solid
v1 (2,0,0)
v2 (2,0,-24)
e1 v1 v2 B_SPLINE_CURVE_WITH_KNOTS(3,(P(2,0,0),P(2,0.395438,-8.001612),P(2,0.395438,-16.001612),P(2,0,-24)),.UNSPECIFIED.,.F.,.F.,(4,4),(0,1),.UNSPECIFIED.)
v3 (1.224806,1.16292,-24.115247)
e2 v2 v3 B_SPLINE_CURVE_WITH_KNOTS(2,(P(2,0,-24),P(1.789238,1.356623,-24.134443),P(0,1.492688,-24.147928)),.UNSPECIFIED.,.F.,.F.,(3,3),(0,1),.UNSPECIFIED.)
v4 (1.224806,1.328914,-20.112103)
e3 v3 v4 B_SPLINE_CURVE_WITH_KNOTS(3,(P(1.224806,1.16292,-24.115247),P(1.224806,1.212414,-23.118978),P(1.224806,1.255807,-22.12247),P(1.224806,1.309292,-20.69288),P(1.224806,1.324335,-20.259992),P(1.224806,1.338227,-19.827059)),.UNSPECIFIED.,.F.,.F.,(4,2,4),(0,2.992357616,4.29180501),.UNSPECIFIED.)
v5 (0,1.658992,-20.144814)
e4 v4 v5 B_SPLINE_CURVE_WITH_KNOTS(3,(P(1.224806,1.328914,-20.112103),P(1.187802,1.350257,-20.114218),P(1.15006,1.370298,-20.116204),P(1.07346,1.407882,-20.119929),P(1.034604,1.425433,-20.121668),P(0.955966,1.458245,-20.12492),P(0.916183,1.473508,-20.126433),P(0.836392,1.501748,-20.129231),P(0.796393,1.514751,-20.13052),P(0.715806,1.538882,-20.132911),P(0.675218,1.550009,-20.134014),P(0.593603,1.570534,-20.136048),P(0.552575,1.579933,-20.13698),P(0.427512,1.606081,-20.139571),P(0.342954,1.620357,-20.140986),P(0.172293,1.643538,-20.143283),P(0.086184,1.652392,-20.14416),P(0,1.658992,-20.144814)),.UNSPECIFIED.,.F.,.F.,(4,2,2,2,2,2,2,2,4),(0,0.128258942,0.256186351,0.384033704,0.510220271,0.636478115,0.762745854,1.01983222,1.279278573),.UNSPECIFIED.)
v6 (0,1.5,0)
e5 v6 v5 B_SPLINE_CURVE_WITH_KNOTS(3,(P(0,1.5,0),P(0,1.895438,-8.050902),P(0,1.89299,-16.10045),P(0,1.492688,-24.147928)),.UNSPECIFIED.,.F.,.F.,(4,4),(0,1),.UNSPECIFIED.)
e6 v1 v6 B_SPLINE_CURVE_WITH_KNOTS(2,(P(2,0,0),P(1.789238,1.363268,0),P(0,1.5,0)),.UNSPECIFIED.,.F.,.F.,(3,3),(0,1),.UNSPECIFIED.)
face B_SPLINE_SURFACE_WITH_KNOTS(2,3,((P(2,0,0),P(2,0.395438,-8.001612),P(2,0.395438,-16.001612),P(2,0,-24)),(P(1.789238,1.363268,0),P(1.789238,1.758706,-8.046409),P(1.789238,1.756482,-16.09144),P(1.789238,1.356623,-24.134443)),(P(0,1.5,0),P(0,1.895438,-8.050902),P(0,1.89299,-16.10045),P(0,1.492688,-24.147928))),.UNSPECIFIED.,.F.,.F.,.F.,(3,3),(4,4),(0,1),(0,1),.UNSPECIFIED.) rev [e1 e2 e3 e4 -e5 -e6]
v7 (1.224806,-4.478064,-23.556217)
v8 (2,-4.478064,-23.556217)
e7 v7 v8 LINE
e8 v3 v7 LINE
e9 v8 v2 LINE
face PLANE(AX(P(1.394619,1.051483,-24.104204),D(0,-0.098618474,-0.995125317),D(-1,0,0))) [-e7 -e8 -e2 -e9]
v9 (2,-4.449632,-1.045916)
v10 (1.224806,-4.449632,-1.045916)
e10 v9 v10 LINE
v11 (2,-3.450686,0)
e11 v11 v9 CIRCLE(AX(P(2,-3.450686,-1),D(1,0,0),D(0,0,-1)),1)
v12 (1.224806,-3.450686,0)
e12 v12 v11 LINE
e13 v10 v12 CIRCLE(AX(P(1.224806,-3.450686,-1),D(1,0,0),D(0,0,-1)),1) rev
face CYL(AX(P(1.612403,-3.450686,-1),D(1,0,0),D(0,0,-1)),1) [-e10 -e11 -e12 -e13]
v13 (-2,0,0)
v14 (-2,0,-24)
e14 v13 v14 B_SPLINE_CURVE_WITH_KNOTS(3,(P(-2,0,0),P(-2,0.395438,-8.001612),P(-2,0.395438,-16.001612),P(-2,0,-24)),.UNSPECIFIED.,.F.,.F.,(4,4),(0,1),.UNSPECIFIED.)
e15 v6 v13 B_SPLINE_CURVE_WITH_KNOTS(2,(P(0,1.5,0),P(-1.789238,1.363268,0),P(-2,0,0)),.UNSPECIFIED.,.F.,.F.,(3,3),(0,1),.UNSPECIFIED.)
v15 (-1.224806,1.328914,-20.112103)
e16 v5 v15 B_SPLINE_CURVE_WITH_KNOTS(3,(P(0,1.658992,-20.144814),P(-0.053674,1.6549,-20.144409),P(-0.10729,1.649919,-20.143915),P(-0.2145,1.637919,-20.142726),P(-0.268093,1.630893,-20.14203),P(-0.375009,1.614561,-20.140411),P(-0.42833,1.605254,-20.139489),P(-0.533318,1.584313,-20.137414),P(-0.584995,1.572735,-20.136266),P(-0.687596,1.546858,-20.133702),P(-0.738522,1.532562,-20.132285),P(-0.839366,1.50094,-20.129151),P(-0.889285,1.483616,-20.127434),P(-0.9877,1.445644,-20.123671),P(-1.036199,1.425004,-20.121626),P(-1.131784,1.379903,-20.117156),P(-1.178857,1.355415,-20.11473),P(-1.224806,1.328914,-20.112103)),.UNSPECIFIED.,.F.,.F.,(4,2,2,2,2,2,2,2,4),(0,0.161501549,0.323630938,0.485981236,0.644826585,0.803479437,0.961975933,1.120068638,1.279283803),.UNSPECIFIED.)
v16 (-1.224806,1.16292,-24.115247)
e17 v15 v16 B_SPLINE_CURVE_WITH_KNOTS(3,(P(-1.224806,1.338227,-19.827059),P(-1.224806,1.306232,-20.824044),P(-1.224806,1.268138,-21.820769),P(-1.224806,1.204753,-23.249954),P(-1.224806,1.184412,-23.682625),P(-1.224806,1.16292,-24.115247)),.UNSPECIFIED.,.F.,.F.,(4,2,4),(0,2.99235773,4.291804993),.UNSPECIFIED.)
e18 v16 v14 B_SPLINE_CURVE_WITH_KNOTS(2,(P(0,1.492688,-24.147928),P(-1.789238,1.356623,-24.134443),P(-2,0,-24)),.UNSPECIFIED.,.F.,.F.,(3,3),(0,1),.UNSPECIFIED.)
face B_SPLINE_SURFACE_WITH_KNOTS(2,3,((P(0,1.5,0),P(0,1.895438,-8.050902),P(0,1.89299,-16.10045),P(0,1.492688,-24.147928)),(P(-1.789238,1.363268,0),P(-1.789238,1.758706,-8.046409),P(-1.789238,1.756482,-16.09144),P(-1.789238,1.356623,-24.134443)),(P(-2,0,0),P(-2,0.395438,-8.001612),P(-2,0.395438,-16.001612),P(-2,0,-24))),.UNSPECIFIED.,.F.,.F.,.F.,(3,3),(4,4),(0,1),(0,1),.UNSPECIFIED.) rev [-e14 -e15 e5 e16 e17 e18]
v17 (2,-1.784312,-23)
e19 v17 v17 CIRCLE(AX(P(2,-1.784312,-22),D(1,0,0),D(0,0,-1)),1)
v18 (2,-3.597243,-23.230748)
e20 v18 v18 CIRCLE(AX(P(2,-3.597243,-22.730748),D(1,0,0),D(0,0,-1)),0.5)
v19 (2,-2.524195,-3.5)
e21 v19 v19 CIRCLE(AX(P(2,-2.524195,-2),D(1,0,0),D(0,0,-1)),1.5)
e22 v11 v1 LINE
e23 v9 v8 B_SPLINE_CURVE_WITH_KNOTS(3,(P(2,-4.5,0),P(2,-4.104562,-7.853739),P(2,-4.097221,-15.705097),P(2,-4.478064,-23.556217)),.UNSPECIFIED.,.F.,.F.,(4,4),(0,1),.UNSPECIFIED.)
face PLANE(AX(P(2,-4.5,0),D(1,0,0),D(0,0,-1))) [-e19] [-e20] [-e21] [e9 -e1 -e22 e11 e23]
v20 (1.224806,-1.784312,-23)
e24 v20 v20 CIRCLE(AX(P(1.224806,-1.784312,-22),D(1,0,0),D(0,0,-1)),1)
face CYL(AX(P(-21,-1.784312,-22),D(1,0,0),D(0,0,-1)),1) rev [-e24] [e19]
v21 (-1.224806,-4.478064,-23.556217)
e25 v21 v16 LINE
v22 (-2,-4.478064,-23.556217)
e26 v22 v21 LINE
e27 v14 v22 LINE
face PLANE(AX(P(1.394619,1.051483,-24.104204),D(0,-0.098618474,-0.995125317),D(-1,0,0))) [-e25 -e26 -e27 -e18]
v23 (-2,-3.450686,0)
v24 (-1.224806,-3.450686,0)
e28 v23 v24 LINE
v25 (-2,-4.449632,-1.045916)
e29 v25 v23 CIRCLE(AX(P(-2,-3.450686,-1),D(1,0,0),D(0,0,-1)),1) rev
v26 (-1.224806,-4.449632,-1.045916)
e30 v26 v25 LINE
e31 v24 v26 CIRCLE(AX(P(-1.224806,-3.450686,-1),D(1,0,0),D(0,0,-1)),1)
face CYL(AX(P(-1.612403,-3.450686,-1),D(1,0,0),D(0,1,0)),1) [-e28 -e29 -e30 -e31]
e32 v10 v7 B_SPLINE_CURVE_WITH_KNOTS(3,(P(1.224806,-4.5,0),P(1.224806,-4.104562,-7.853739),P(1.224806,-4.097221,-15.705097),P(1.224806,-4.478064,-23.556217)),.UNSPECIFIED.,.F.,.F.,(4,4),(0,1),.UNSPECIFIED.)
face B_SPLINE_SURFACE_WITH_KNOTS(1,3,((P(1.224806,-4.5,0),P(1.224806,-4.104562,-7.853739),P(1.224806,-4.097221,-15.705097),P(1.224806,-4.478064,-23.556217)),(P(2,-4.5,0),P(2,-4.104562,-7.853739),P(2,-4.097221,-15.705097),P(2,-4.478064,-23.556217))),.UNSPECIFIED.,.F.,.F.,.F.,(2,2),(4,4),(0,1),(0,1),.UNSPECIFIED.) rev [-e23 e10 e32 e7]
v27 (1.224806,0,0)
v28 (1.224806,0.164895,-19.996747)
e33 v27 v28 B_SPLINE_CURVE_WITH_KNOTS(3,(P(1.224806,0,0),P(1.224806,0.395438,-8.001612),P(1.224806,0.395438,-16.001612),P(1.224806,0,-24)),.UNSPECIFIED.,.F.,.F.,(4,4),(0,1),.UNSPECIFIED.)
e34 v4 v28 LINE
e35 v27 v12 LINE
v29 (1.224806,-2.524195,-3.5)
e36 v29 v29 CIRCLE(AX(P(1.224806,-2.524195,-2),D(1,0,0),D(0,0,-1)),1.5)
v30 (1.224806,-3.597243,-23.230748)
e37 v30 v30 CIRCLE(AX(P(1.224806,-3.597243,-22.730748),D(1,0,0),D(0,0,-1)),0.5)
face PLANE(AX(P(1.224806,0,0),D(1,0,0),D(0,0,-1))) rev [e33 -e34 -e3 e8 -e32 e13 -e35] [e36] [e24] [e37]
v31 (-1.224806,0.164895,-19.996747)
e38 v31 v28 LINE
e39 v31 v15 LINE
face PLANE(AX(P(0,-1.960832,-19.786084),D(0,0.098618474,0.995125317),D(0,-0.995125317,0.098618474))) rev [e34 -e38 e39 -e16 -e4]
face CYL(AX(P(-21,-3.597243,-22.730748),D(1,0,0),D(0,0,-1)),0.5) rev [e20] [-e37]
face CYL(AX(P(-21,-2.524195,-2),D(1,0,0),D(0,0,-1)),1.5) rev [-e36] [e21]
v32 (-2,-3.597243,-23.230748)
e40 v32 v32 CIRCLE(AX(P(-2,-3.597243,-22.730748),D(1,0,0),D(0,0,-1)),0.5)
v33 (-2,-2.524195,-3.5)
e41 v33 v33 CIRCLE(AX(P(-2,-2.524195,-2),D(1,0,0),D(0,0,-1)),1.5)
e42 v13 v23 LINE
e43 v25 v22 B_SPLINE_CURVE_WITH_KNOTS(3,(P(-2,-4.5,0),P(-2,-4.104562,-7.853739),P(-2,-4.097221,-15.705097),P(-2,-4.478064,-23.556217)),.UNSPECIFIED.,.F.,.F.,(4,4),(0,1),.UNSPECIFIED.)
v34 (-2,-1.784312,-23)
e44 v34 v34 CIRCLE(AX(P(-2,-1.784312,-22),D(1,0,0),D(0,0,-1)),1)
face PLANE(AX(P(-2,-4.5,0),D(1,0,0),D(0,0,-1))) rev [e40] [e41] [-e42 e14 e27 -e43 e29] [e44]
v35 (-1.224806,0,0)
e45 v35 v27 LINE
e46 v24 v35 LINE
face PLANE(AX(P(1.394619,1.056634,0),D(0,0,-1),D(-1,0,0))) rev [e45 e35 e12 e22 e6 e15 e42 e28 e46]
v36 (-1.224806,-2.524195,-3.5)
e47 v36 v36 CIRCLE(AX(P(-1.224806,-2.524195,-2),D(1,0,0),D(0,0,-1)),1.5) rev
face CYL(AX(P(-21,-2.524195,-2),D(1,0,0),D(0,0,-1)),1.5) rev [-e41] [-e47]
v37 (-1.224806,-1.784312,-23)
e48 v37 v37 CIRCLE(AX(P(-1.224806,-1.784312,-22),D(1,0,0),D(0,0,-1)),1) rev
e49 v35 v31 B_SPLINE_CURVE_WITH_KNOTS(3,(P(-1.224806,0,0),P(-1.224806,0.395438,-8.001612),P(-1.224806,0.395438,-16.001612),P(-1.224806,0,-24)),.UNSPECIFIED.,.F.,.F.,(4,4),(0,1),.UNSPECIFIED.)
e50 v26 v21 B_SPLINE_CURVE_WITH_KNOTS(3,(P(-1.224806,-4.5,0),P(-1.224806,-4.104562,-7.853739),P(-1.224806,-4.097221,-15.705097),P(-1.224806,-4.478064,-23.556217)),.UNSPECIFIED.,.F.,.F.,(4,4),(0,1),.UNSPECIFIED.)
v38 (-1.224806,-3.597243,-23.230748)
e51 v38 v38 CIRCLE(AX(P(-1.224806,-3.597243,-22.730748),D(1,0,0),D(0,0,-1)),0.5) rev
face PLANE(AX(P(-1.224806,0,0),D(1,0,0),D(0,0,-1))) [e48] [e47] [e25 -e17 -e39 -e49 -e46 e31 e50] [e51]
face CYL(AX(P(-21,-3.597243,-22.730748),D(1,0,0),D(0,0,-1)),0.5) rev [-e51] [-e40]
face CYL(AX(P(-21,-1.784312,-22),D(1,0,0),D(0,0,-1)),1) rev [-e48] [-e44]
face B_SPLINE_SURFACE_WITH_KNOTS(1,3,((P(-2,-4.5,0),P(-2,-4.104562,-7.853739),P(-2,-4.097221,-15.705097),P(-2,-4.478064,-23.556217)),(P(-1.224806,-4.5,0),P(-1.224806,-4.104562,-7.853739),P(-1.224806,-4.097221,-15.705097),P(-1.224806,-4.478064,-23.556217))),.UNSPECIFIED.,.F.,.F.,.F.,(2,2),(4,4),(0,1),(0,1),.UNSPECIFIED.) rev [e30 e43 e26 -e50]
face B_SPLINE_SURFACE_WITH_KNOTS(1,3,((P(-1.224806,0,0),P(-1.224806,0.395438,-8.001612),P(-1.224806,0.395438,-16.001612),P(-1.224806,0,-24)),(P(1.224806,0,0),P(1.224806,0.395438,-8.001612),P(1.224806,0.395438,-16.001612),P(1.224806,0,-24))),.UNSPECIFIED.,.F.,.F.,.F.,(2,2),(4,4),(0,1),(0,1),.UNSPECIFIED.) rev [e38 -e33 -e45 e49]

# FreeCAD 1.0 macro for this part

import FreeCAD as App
import Part
import Sketcher
Q = App.Units.Quantity


def edges_at(feature, points):
    """Names of the edges that pass closest to the given points."""
    edges = feature.Shape.Edges
    near = lambda p: min(range(len(edges)), key=lambda i: edges[i].distToShape(Part.Vertex(*p))[0])
    return sorted({f"Edge{near(p) + 1}" for p in points})


def add_polygon(sketch, points):
    """Adds a closed chain of lines whose ends are joined by coincident constraints."""
    first, n = sketch.GeometryCount, len(points)
    for a, b in zip(points, points[1:] + points[:1]):
        sketch.addGeometry(Part.LineSegment(App.Vector(*a, 0), App.Vector(*b, 0)), False)
    for i in range(n):
        sketch.addConstraint(Sketcher.Constraint("Coincident", first + i, 2, first + (i + 1) % n, 1))

doc = App.newDocument("Part")
body = doc.addObject("PartDesign::Body", "Body")

# Sketch on XY plane
sketch1 = doc.addObject("Sketcher::SketchObject", "Sketch")
body.addObject(sketch1)
sketch1.AttachmentSupport = (doc.XY_Plane, [""])
sketch1.MapMode = "FlatFace"
sketch1.addGeometry(Part.LineSegment(App.Vector(-1.224806, 0, 0), App.Vector(1.224806, 0, 0)), False)
sketch1.addGeometry(Part.LineSegment(App.Vector(1.224806, 0, 0), App.Vector(1.224806, -4.5, 0)), False)
sketch1.addGeometry(Part.LineSegment(App.Vector(1.224806, -4.5, 0), App.Vector(2, -4.5, 0)), False)
sketch1.addGeometry(Part.LineSegment(App.Vector(2, -4.5, 0), App.Vector(2, 0, 0)), False)
sketch1.addGeometry(Part.BSplineCurve([App.Vector(2, 0, 0), App.Vector(1.789238, 1.363268, 0), App.Vector(0, 1.5, 0)], [3, 3], [0, 1], False, 2, [1, 1, 1], False), False)
sketch1.addGeometry(Part.BSplineCurve([App.Vector(-2, 0, 0), App.Vector(-1.789238, 1.363268, 0), App.Vector(0, 1.5, 0)], [3, 3], [0, 1], False, 2, [1, 1, 1], False), False)
sketch1.addGeometry(Part.LineSegment(App.Vector(-2, 0, 0), App.Vector(-2, -4.5, 0)), False)
sketch1.addGeometry(Part.LineSegment(App.Vector(-2, -4.5, 0), App.Vector(-1.224806, -4.5, 0)), False)
sketch1.addGeometry(Part.LineSegment(App.Vector(-1.224806, -4.5, 0), App.Vector(-1.224806, 0, 0)), False)
sketch1.addConstraint(Sketcher.Constraint("Block", 4))
sketch1.addConstraint(Sketcher.Constraint("Block", 5))
sketch1.addConstraint(Sketcher.Constraint("Coincident", 0, 2, 1, 1))
sketch1.addConstraint(Sketcher.Constraint("Coincident", 1, 2, 2, 1))
sketch1.addConstraint(Sketcher.Constraint("Coincident", 2, 2, 3, 1))
sketch1.addConstraint(Sketcher.Constraint("Coincident", 3, 2, 4, 1))
sketch1.addConstraint(Sketcher.Constraint("Coincident", 5, 1, 6, 1))
sketch1.addConstraint(Sketcher.Constraint("Coincident", 6, 2, 7, 1))
sketch1.addConstraint(Sketcher.Constraint("Coincident", 7, 2, 8, 1))
sketch1.addConstraint(Sketcher.Constraint("Coincident", 8, 2, 0, 1))
sketch1.addConstraint(Sketcher.Constraint("Horizontal", 0))
sketch1.addConstraint(Sketcher.Constraint("Vertical", 1))
sketch1.addConstraint(Sketcher.Constraint("Horizontal", 2))
sketch1.addConstraint(Sketcher.Constraint("Vertical", 3))
sketch1.addConstraint(Sketcher.Constraint("Vertical", 6))
sketch1.addConstraint(Sketcher.Constraint("Horizontal", 7))
sketch1.addConstraint(Sketcher.Constraint("Vertical", 8))
sketch1.addConstraint(Sketcher.Constraint("Symmetric", 0, 2, 8, 2, -1, 1))
sketch1.addConstraint(Sketcher.Constraint("Horizontal", 2, 2, 6, 2))
sketch1.addConstraint(Sketcher.Constraint("DistanceY", 1, 2, 1, 1, Q("4.5 mm")))
sketch1.addConstraint(Sketcher.Constraint("DistanceX", 0, 1, 0, 2, Q("2.449612 mm")))

# Sketch on YZ plane
sketch2 = doc.addObject("Sketcher::SketchObject", "Sketch001")
body.addObject(sketch2)
sketch2.AttachmentSupport = (doc.YZ_Plane, [""])
sketch2.MapMode = "FlatFace"
sketch2.addGeometry(Part.BSplineCurve([App.Vector(0, 0, 0), App.Vector(0.593157, -12.002417, 0), App.Vector(0, -24, 0)], [3, 3], [0, 1], False, 2, [1, 1, 1], False), False)
sketch2.addConstraint(Sketcher.Constraint("Block", 0))
doc.recompute()

additivepipe = doc.addObject("PartDesign::AdditivePipe", "AdditivePipe")
body.addObject(additivepipe)
additivepipe.Profile = sketch1
additivepipe.Spine = (sketch2, ["Edge1"])

# Sketch on YZ plane
sketch3 = doc.addObject("Sketcher::SketchObject", "Sketch002")
body.addObject(sketch3)
sketch3.AttachmentSupport = (doc.YZ_Plane, [""])
sketch3.MapMode = "FlatFace"
sketch3.AttachmentOffset = App.Placement(App.Vector(0, 0, 2), App.Rotation())
sketch3.addGeometry(Part.Circle(App.Vector(-2.5, -2, 0), App.Vector(0, 0, 1), 1.5), False)
sketch3.addGeometry(Part.Circle(App.Vector(-1.8, -22, 0), App.Vector(0, 0, 1), 1), False)
sketch3.addConstraint(Sketcher.Constraint("Diameter", 0, Q("3 mm")))
sketch3.addConstraint(Sketcher.Constraint("Diameter", 1, Q("2 mm")))
sketch3.addConstraint(Sketcher.Constraint("DistanceY", 0, 3, -1, 1, Q("2 mm")))
sketch3.addConstraint(Sketcher.Constraint("DistanceY", 1, 3, -1, 1, Q("22 mm")))
sketch3.addConstraint(Sketcher.Constraint("DistanceX", 1, 3, -1, 1, Q("1.784312 mm")))
sketch3.addConstraint(Sketcher.Constraint("DistanceX", 0, 3, -1, 1, Q("2.524195 mm")))
pocket1 = doc.addObject("PartDesign::Pocket", "Pocket")
body.addObject(pocket1)
pocket1.Profile = sketch3
pocket1.Length = 23
doc.recompute()

fillet = doc.addObject("PartDesign::Fillet", "Fillet")
body.addObject(fillet)
fillet.Base = (pocket1, edges_at(pocket1, [(-1.612, -4.5, 0), (1.612, -4.5, 0)]))
fillet.Radius = 1

# Sketch on YZ plane
sketch4 = doc.addObject("Sketcher::SketchObject", "Sketch003")
body.addObject(sketch4)
sketch4.AttachmentSupport = (doc.YZ_Plane, [""])
sketch4.MapMode = "FlatFace"
sketch4.AttachmentOffset = App.Placement(App.Vector(0, 0, 2), App.Rotation())
sketch4.addGeometry(Part.Circle(App.Vector(-3.6, -22.7, 0), App.Vector(0, 0, 1), 0.5), False)
sketch4.addConstraint(Sketcher.Constraint("Diameter", 0, Q("1 mm")))
sketch4.addConstraint(Sketcher.Constraint("DistanceX", 0, 3, -1, 1, Q("3.597243 mm")))
sketch4.addConstraint(Sketcher.Constraint("DistanceY", 0, 3, -1, 1, Q("22.730748 mm")))
pocket2 = doc.addObject("PartDesign::Pocket", "Pocket001")
body.addObject(pocket2)
pocket2.Profile = sketch4
pocket2.Length = 23

# Sketch on an angled plane
sketch5 = doc.addObject("Sketcher::SketchObject", "Sketch004")
body.addObject(sketch5)
sketch5.Placement = App.Placement(App.Vector(0, -2.355306, -23.766586), App.Rotation(App.Vector(-1, 0, 0), App.Vector(0, 0.995125317, -0.098618474), App.Vector(0, -0.098618474, -0.995125317), "ZXY"))
add_polygon(sketch5, [(-1.2, 5.8), (-1.2, 0.7), (1.2, 0.7), (1.2, 5.8)])  # lines 0-3
sketch5.addConstraint(Sketcher.Constraint("Vertical", 0))
sketch5.addConstraint(Sketcher.Constraint("Horizontal", 1))
sketch5.addConstraint(Sketcher.Constraint("Vertical", 2))
sketch5.addConstraint(Sketcher.Constraint("Horizontal", 3))
sketch5.addConstraint(Sketcher.Constraint("DistanceY", 0, 2, 0, 1, Q("5.085441 mm")))
sketch5.addConstraint(Sketcher.Constraint("DistanceX", 1, 1, 1, 2, Q("2.449612 mm")))
sketch5.addConstraint(Sketcher.Constraint("DistanceX", 0, 2, -1, 1, Q("1.224806 mm")))
sketch5.addConstraint(Sketcher.Constraint("DistanceY", -1, 1, 0, 2, Q("0.688176 mm")))
pocket3 = doc.addObject("PartDesign::Pocket", "Pocket002")
body.addObject(pocket3)
pocket3.Profile = sketch5
pocket3.Length = 4

doc.recompute()
